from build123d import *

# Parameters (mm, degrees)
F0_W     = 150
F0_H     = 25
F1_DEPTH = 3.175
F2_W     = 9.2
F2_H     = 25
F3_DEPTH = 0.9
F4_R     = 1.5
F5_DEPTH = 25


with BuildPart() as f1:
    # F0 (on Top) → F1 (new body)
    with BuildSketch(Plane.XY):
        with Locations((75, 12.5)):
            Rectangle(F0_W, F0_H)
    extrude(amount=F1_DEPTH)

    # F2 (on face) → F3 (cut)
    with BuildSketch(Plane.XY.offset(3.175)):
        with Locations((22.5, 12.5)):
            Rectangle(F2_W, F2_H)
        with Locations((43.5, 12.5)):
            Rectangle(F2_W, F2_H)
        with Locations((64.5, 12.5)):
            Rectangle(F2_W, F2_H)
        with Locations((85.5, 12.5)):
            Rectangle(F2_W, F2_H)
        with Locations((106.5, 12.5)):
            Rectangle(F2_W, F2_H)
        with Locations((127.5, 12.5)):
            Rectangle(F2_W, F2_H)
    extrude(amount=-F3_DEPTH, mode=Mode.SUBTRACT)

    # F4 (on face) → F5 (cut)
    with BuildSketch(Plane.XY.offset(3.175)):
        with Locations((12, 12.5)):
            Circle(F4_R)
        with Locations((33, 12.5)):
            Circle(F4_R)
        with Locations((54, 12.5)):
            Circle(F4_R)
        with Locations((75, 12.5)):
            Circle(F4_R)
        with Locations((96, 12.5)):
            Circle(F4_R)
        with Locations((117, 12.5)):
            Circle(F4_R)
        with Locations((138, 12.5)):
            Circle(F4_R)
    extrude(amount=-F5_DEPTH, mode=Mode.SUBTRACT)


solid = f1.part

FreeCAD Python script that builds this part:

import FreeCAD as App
import Part
import Sketcher
Q = App.Units.Quantity

doc = App.newDocument("Part")
params = doc.addObject("Spreadsheet::Sheet", "Params")
for row, (alias, value) in enumerate([
    ("sketch1_width", "150 mm"),
    ("sketch1_height", "25 mm"),
    ("pad1_length", "3.175 mm"),
    ("sketch2_height", "25 mm"),
    ("sketch2_width", "9.2 mm"),
    ("pocket1_length", "0.9 mm"),
    ("sketch3_diameter", "3 mm"),
    ("pocket2_length", "25 mm"),
], start=1):
    params.set(f"A{row}", alias)
    params.set(f"B{row}", "=" + value)
    params.setAlias(f"B{row}", alias)

body = doc.addObject("PartDesign::Body", "Body")

sketch1 = doc.addObject("Sketcher::SketchObject", "Sketch")
body.addObject(sketch1)
sketch1.AttachmentSupport = (doc.XY_Plane, [""])
sketch1.MapMode = "FlatFace"
sketch1.addGeometry([
    Part.LineSegment(App.Vector(0, 25, 0), App.Vector(0, 0, 0)),
    Part.LineSegment(App.Vector(0, 0, 0), App.Vector(150, 0, 0)),
    Part.LineSegment(App.Vector(150, 0, 0), App.Vector(150, 25, 0)),
    Part.LineSegment(App.Vector(150, 25, 0), App.Vector(0, 25, 0)),
], False)
sketch1.addConstraint([
    Sketcher.Constraint("Coincident", 0, 2, 1, 1),
    Sketcher.Constraint("Coincident", 1, 2, 2, 1),
    Sketcher.Constraint("Coincident", 2, 2, 3, 1),
    Sketcher.Constraint("Coincident", 3, 2, 0, 1),
    Sketcher.Constraint("Vertical", 0),
    Sketcher.Constraint("Horizontal", 1),
    Sketcher.Constraint("Vertical", 2),
    Sketcher.Constraint("Horizontal", 3),
    Sketcher.Constraint("Coincident", 0, 2, -1, 1),
    Sketcher.Constraint("DistanceX", 1, 1, 1, 2, Q("150 mm")),
    Sketcher.Constraint("DistanceY", 0, 2, 0, 1, Q("25 mm")),
])
sketch1.setExpression("Constraints[9]", "Params.sketch1_width")
sketch1.setExpression("Constraints[10]", "Params.sketch1_height")
pad1 = doc.addObject("PartDesign::Pad", "Pad")
body.addObject(pad1)
pad1.Profile = sketch1
pad1.setExpression("Length", "Params.pad1_length")

sketch2 = doc.addObject("Sketcher::SketchObject", "Sketch001")
body.addObject(sketch2)
sketch2.AttachmentSupport = (doc.XY_Plane, [""])
sketch2.MapMode = "FlatFace"
sketch2.AttachmentOffset = App.Placement(App.Vector(0, 0, 3.175), App.Rotation())
sketch2.addGeometry([
    Part.LineSegment(App.Vector(18, 25, 0), App.Vector(18, 0, 0)),
    Part.LineSegment(App.Vector(18, 0, 0), App.Vector(27, 0, 0)),
    Part.LineSegment(App.Vector(27, 0, 0), App.Vector(27, 25, 0)),
    Part.LineSegment(App.Vector(27, 25, 0), App.Vector(18, 25, 0)),
    Part.LineSegment(App.Vector(39, 25, 0), App.Vector(39, 0, 0)),
    Part.LineSegment(App.Vector(39, 0, 0), App.Vector(48, 0, 0)),
    Part.LineSegment(App.Vector(48, 0, 0), App.Vector(48, 25, 0)),
    Part.LineSegment(App.Vector(48, 25, 0), App.Vector(39, 25, 0)),
    Part.LineSegment(App.Vector(60, 25, 0), App.Vector(60, 0, 0)),
    Part.LineSegment(App.Vector(60, 0, 0), App.Vector(69, 0, 0)),
    Part.LineSegment(App.Vector(69, 0, 0), App.Vector(69, 25, 0)),
    Part.LineSegment(App.Vector(69, 25, 0), App.Vector(60, 25, 0)),
    Part.LineSegment(App.Vector(81, 25, 0), App.Vector(81, 0, 0)),
    Part.LineSegment(App.Vector(81, 0, 0), App.Vector(90, 0, 0)),
    Part.LineSegment(App.Vector(90, 0, 0), App.Vector(90, 25, 0)),
    Part.LineSegment(App.Vector(90, 25, 0), App.Vector(81, 25, 0)),
    Part.LineSegment(App.Vector(102, 25, 0), App.Vector(102, 0, 0)),
    Part.LineSegment(App.Vector(102, 0, 0), App.Vector(111, 0, 0)),
    Part.LineSegment(App.Vector(111, 0, 0), App.Vector(111, 25, 0)),
    Part.LineSegment(App.Vector(111, 25, 0), App.Vector(102, 25, 0)),
    Part.LineSegment(App.Vector(123, 25, 0), App.Vector(123, 0, 0)),
    Part.LineSegment(App.Vector(123, 0, 0), App.Vector(132, 0, 0)),
    Part.LineSegment(App.Vector(132, 0, 0), App.Vector(132, 25, 0)),
    Part.LineSegment(App.Vector(132, 25, 0), App.Vector(123, 25, 0)),
], False)
sketch2.addConstraint([
    Sketcher.Constraint("Coincident", 0, 2, 1, 1),
    Sketcher.Constraint("Coincident", 1, 2, 2, 1),
    Sketcher.Constraint("Coincident", 2, 2, 3, 1),
    Sketcher.Constraint("Coincident", 3, 2, 0, 1),
    Sketcher.Constraint("Coincident", 4, 2, 5, 1),
    Sketcher.Constraint("Coincident", 5, 2, 6, 1),
    Sketcher.Constraint("Coincident", 6, 2, 7, 1),
    Sketcher.Constraint("Coincident", 7, 2, 4, 1),
    Sketcher.Constraint("Coincident", 8, 2, 9, 1),
    Sketcher.Constraint("Coincident", 9, 2, 10, 1),
    Sketcher.Constraint("Coincident", 10, 2, 11, 1),
    Sketcher.Constraint("Coincident", 11, 2, 8, 1),
    Sketcher.Constraint("Coincident", 12, 2, 13, 1),
    Sketcher.Constraint("Coincident", 13, 2, 14, 1),
    Sketcher.Constraint("Coincident", 14, 2, 15, 1),
    Sketcher.Constraint("Coincident", 15, 2, 12, 1),
    Sketcher.Constraint("Coincident", 16, 2, 17, 1),
    Sketcher.Constraint("Coincident", 17, 2, 18, 1),
    Sketcher.Constraint("Coincident", 18, 2, 19, 1),
    Sketcher.Constraint("Coincident", 19, 2, 16, 1),
    Sketcher.Constraint("Coincident", 20, 2, 21, 1),
    Sketcher.Constraint("Coincident", 21, 2, 22, 1),
    Sketcher.Constraint("Coincident", 22, 2, 23, 1),
    Sketcher.Constraint("Coincident", 23, 2, 20, 1),
    Sketcher.Constraint("Vertical", 0),
    Sketcher.Constraint("Horizontal", 1),
    Sketcher.Constraint("Vertical", 2),
    Sketcher.Constraint("Horizontal", 3),
    Sketcher.Constraint("Vertical", 4),
    Sketcher.Constraint("Horizontal", 5),
    Sketcher.Constraint("Vertical", 6),
    Sketcher.Constraint("Horizontal", 7),
    Sketcher.Constraint("Vertical", 8),
    Sketcher.Constraint("Horizontal", 9),
    Sketcher.Constraint("Vertical", 10),
    Sketcher.Constraint("Horizontal", 11),
    Sketcher.Constraint("Vertical", 12),
    Sketcher.Constraint("Horizontal", 13),
    Sketcher.Constraint("Vertical", 14),
    Sketcher.Constraint("Horizontal", 15),
    Sketcher.Constraint("Vertical", 16),
    Sketcher.Constraint("Horizontal", 17),
    Sketcher.Constraint("Vertical", 18),
    Sketcher.Constraint("Horizontal", 19),
    Sketcher.Constraint("Vertical", 20),
    Sketcher.Constraint("Horizontal", 21),
    Sketcher.Constraint("Vertical", 22),
    Sketcher.Constraint("Horizontal", 23),
    Sketcher.Constraint("PointOnObject", 0, 2, -1),
    Sketcher.Constraint("PointOnObject", 4, 2, -1),
    Sketcher.Constraint("PointOnObject", 8, 2, -1),
    Sketcher.Constraint("PointOnObject", 12, 2, -1),
    Sketcher.Constraint("PointOnObject", 16, 2, -1),
    Sketcher.Constraint("PointOnObject", 20, 2, -1),
    Sketcher.Constraint("Horizontal", 3, 2, 6, 2),
    Sketcher.Constraint("Horizontal", 7, 2, 10, 2),
    Sketcher.Constraint("Horizontal", 11, 2, 14, 2),
    Sketcher.Constraint("Horizontal", 15, 2, 18, 2),
    Sketcher.Constraint("Horizontal", 19, 2, 22, 2),
    Sketcher.Constraint("Equal", 3, 5),
    Sketcher.Constraint("Equal", 7, 9),
    Sketcher.Constraint("Equal", 11, 13),
    Sketcher.Constraint("Equal", 15, 17),
    Sketcher.Constraint("Equal", 19, 21),
    Sketcher.Constraint("DistanceY", 0, 2, 0, 1, Q("25 mm")),
    Sketcher.Constraint("DistanceX", 1, 1, 1, 2, Q("9.2 mm")),
    Sketcher.Constraint("DistanceX", 0, 2, 4, 2, Q("21 mm")),
    Sketcher.Constraint("DistanceX", 4, 2, 8, 2, Q("21 mm")),
    Sketcher.Constraint("DistanceX", 8, 2, 12, 2, Q("21 mm")),
    Sketcher.Constraint("DistanceX", 12, 2, 16, 2, Q("21 mm")),
    Sketcher.Constraint("DistanceX", 16, 2, 20, 2, Q("21 mm")),
    Sketcher.Constraint("DistanceX", -1, 1, 0, 2, Q("17.9 mm")),
])
sketch2.setExpression("Constraints[64]", "Params.sketch2_height")
sketch2.setExpression("Constraints[65]", "Params.sketch2_width")
pocket1 = doc.addObject("PartDesign::Pocket", "Pocket")
body.addObject(pocket1)
pocket1.Profile = sketch2
pocket1.setExpression("Length", "Params.pocket1_length")

sketch3 = doc.addObject("Sketcher::SketchObject", "Sketch002")
body.addObject(sketch3)
sketch3.AttachmentSupport = (doc.XY_Plane, [""])
sketch3.MapMode = "FlatFace"
sketch3.AttachmentOffset = App.Placement(App.Vector(0, 0, 3.175), App.Rotation())
sketch3.addGeometry([
    Part.Circle(App.Vector(12, 12.5, 0), App.Vector(0, 0, 1), 1.5),
    Part.Circle(App.Vector(33, 12.5, 0), App.Vector(0, 0, 1), 1.5),
    Part.Circle(App.Vector(54, 12.5, 0), App.Vector(0, 0, 1), 1.5),
    Part.Circle(App.Vector(75, 12.5, 0), App.Vector(0, 0, 1), 1.5),
    Part.Circle(App.Vector(96, 12.5, 0), App.Vector(0, 0, 1), 1.5),
    Part.Circle(App.Vector(117, 12.5, 0), App.Vector(0, 0, 1), 1.5),
    Part.Circle(App.Vector(138, 12.5, 0), App.Vector(0, 0, 1), 1.5),
], False)
sketch3.addConstraint([
    Sketcher.Constraint("Equal", 0, 1),
    Sketcher.Constraint("Equal", 1, 2),
    Sketcher.Constraint("Equal", 2, 3),
    Sketcher.Constraint("Equal", 3, 4),
    Sketcher.Constraint("Equal", 4, 5),
    Sketcher.Constraint("Equal", 5, 6),
    Sketcher.Constraint("Horizontal", 0, 3, 1, 3),
    Sketcher.Constraint("Horizontal", 1, 3, 2, 3),
    Sketcher.Constraint("Horizontal", 2, 3, 3, 3),
    Sketcher.Constraint("Horizontal", 3, 3, 4, 3),
    Sketcher.Constraint("Horizontal", 4, 3, 5, 3),
    Sketcher.Constraint("Horizontal", 5, 3, 6, 3),
    Sketcher.Constraint("Diameter", 0, Q("3 mm")),
    Sketcher.Constraint("DistanceX", -1, 1, 0, 3, Q("12 mm")),
    Sketcher.Constraint("DistanceX", -1, 1, 1, 3, Q("33 mm")),
    Sketcher.Constraint("DistanceX", -1, 1, 2, 3, Q("54 mm")),
    Sketcher.Constraint("DistanceX", -1, 1, 3, 3, Q("75 mm")),
    Sketcher.Constraint("DistanceX", -1, 1, 4, 3, Q("96 mm")),
    Sketcher.Constraint("DistanceX", -1, 1, 5, 3, Q("117 mm")),
    Sketcher.Constraint("DistanceX", -1, 1, 6, 3, Q("138 mm")),
    Sketcher.Constraint("DistanceY", -1, 1, 0, 3, Q("12.5 mm")),
])
sketch3.setExpression("Constraints[12]", "Params.sketch3_diameter")
pocket2 = doc.addObject("PartDesign::Pocket", "Pocket001")
body.addObject(pocket2)
pocket2.Profile = sketch3
pocket2.setExpression("Length", "Params.pocket2_length")

doc.recompute()
